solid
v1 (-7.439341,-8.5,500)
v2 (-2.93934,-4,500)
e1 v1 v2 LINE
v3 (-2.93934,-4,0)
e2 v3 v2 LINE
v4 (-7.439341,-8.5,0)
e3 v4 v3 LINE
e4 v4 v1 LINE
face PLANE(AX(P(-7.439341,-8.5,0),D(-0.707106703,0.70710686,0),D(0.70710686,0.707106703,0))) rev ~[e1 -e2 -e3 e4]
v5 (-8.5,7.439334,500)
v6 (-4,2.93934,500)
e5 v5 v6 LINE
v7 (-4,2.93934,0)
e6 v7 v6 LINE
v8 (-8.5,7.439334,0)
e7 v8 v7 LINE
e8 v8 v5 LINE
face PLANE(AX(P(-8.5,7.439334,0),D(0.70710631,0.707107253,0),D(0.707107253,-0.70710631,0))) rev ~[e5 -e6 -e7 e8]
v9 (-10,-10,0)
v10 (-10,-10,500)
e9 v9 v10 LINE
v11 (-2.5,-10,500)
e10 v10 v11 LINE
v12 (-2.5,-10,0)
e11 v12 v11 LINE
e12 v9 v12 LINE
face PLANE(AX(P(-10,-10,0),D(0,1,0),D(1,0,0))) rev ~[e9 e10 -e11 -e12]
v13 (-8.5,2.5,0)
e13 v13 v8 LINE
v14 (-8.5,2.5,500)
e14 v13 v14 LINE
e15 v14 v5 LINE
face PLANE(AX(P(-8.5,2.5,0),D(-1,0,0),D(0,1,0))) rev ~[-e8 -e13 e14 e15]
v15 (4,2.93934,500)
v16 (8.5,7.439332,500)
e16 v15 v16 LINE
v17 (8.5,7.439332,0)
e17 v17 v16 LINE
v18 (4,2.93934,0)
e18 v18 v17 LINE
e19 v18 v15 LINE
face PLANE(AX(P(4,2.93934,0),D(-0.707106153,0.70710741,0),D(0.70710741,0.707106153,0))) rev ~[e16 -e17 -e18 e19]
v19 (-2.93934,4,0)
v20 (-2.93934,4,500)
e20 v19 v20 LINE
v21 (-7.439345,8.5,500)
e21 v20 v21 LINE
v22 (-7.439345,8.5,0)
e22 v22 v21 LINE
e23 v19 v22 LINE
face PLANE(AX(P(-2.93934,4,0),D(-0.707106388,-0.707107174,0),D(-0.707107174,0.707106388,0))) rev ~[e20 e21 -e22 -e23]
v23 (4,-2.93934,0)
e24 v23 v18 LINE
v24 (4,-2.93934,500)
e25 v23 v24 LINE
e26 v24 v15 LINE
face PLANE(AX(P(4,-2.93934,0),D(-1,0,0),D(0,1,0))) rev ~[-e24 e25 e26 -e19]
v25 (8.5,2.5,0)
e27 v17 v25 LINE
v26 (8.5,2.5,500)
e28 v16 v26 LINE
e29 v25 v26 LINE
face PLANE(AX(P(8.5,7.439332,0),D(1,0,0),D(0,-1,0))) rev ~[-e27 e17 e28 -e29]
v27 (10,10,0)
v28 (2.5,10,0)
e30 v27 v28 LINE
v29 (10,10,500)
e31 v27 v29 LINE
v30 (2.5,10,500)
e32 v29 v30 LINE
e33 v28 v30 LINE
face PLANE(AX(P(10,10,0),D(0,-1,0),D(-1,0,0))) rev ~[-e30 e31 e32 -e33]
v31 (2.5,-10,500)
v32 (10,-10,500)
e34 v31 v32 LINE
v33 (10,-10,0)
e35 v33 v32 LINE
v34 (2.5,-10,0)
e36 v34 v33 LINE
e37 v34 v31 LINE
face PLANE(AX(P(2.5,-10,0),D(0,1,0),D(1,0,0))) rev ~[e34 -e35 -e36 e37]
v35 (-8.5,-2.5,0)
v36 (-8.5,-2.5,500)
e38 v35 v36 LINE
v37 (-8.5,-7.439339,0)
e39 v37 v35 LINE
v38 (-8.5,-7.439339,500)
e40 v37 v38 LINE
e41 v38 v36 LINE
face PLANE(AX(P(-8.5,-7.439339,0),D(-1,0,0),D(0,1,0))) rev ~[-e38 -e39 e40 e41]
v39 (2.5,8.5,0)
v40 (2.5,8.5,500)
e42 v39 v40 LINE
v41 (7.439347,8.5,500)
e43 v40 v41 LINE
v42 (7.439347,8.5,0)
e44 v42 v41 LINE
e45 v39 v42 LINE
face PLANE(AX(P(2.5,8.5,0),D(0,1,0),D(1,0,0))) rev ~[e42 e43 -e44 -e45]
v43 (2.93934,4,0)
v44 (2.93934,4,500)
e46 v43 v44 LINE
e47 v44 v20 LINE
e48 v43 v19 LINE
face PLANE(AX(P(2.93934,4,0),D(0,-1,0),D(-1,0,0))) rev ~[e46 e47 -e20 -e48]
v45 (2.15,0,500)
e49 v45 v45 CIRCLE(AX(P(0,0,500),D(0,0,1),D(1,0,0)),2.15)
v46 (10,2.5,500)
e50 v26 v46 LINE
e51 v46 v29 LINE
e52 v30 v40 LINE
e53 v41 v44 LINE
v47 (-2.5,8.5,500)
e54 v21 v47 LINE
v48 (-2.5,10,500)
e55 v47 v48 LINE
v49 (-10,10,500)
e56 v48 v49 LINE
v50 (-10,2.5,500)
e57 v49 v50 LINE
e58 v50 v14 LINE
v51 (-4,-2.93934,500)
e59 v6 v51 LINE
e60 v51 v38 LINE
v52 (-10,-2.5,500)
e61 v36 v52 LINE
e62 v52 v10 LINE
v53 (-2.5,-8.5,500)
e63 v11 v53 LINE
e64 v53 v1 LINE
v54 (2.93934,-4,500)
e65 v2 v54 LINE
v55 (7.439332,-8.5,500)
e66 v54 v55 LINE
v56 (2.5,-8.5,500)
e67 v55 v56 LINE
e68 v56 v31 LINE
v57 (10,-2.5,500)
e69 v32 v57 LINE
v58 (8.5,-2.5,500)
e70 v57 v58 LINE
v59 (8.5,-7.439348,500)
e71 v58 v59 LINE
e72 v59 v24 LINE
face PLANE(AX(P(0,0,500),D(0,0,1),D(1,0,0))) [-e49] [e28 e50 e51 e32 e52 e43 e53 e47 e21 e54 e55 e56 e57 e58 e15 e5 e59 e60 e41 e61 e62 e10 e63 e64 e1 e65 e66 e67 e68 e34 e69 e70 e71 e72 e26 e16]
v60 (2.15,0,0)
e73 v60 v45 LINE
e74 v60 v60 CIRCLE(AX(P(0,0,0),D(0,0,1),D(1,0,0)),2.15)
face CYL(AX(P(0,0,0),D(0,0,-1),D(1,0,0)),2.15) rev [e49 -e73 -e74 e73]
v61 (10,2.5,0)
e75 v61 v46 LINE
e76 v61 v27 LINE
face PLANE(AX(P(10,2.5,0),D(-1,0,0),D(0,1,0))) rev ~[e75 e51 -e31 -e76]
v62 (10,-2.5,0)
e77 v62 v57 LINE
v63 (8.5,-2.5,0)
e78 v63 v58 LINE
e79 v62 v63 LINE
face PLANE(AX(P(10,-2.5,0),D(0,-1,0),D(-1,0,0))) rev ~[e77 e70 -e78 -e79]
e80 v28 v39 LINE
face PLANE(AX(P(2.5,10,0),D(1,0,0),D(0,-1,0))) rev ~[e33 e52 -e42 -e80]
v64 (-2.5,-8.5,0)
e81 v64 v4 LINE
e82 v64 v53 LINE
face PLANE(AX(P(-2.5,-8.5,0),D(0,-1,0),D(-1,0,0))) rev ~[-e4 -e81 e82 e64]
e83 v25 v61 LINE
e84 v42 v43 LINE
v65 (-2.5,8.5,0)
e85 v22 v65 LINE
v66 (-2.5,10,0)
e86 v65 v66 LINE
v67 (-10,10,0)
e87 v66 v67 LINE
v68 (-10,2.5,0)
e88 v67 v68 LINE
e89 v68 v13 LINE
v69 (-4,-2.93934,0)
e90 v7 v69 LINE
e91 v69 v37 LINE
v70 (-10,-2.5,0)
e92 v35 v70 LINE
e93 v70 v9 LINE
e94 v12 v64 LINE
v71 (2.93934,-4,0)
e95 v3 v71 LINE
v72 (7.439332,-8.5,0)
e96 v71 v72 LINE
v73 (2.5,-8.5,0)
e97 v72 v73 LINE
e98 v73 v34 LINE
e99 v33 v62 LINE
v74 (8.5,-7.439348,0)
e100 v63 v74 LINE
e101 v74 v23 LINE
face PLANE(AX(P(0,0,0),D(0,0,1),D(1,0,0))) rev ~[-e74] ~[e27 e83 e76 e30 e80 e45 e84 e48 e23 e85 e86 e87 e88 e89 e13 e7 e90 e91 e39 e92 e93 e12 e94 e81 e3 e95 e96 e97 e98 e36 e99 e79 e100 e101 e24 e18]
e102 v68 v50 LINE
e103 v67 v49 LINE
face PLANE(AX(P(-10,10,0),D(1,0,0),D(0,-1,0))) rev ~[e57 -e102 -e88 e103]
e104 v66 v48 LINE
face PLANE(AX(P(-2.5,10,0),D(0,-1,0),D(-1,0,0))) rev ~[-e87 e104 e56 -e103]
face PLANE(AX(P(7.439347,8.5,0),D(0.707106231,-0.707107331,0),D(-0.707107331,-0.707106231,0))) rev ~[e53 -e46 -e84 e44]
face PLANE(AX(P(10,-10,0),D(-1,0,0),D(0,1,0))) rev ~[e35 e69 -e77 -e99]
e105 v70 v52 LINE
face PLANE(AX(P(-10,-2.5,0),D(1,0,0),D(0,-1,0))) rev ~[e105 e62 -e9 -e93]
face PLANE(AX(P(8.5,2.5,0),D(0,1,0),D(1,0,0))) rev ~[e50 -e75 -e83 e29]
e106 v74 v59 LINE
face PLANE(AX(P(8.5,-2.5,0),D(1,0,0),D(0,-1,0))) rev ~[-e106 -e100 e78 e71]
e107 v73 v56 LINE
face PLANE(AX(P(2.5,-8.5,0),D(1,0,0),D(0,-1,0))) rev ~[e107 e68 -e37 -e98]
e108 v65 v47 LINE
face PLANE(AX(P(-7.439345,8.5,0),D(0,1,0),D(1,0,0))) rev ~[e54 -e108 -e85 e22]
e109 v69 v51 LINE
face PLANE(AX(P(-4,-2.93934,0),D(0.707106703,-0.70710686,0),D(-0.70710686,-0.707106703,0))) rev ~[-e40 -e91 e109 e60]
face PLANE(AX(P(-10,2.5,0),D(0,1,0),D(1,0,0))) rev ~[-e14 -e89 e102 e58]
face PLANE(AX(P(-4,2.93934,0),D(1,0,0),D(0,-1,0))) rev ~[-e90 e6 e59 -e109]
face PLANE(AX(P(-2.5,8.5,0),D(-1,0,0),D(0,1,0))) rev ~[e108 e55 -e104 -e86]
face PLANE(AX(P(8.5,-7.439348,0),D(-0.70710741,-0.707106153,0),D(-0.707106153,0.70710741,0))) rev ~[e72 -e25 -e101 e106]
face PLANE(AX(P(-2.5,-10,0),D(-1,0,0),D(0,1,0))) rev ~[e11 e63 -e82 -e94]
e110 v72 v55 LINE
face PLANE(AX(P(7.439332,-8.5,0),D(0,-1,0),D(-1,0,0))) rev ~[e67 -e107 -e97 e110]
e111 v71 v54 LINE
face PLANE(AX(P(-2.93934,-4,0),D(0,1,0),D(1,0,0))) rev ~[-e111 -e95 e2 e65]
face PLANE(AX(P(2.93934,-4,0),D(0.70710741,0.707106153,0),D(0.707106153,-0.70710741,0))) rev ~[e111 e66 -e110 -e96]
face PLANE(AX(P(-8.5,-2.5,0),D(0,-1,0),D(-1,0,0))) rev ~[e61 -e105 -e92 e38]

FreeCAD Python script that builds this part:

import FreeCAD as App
import Part
import Sketcher
from FreeCAD import Vector
Q = App.Units.Quantity

doc = App.newDocument("Part")
body = doc.addObject("PartDesign::Body", "Body")

# Sketch on XY plane
sketch1 = body.newObject("Sketcher::SketchObject", "Sketch")
sketch1.AttachmentSupport = (doc.getObject("XY_Plane"), [""])
sketch1.MapMode = "FlatFace"
sketch1.addGeometry([
    Part.LineSegment(Vector(-4, 2.93934, 0), Vector(-4, -2.93934, 0)),  # 0
    Part.LineSegment(Vector(-4, -2.93934, 0), Vector(-8.5, -7.439339, 0)),  # 1
    Part.LineSegment(Vector(-8.5, -7.439339, 0), Vector(-8.5, -2.5, 0)),  # 2
    Part.LineSegment(Vector(-8.5, -2.5, 0), Vector(-10, -2.5, 0)),  # 3
    Part.LineSegment(Vector(-10, -2.5, 0), Vector(-10, -10, 0)),  # 4
    Part.LineSegment(Vector(-10, -10, 0), Vector(-2.5, -10, 0)),  # 5
    Part.LineSegment(Vector(-2.5, -10, 0), Vector(-2.5, -8.5, 0)),  # 6
    Part.LineSegment(Vector(-2.5, -8.5, 0), Vector(-7.439341, -8.5, 0)),  # 7
    Part.LineSegment(Vector(-7.439341, -8.5, 0), Vector(-2.93934, -4, 0)),  # 8
    Part.LineSegment(Vector(-2.93934, -4, 0), Vector(2.93934, -4, 0)),  # 9
    Part.LineSegment(Vector(2.93934, -4, 0), Vector(7.439332, -8.5, 0)),  # 10
    Part.LineSegment(Vector(7.439332, -8.5, 0), Vector(2.5, -8.5, 0)),  # 11
    Part.LineSegment(Vector(2.5, -8.5, 0), Vector(2.5, -10, 0)),  # 12
    Part.LineSegment(Vector(2.5, -10, 0), Vector(10, -10, 0)),  # 13
    Part.LineSegment(Vector(10, -10, 0), Vector(10, -2.5, 0)),  # 14
    Part.LineSegment(Vector(10, -2.5, 0), Vector(8.5, -2.5, 0)),  # 15
    Part.LineSegment(Vector(8.5, -2.5, 0), Vector(8.5, -7.439348, 0)),  # 16
    Part.LineSegment(Vector(8.5, -7.439348, 0), Vector(4, -2.93934, 0)),  # 17
    Part.LineSegment(Vector(4, -2.93934, 0), Vector(4, 2.93934, 0)),  # 18
    Part.LineSegment(Vector(4, 2.93934, 0), Vector(8.5, 7.439332, 0)),  # 19
    Part.LineSegment(Vector(8.5, 7.439332, 0), Vector(8.5, 2.5, 0)),  # 20
    Part.LineSegment(Vector(8.5, 2.5, 0), Vector(10, 2.5, 0)),  # 21
    Part.LineSegment(Vector(10, 2.5, 0), Vector(10, 10, 0)),  # 22
    Part.LineSegment(Vector(10, 10, 0), Vector(2.5, 10, 0)),  # 23
    Part.LineSegment(Vector(2.5, 10, 0), Vector(2.5, 8.5, 0)),  # 24
    Part.LineSegment(Vector(2.5, 8.5, 0), Vector(7.439347, 8.5, 0)),  # 25
    Part.LineSegment(Vector(7.439347, 8.5, 0), Vector(2.93934, 4, 0)),  # 26
    Part.LineSegment(Vector(2.93934, 4, 0), Vector(-2.93934, 4, 0)),  # 27
    Part.LineSegment(Vector(-2.93934, 4, 0), Vector(-7.439345, 8.5, 0)),  # 28
    Part.LineSegment(Vector(-7.439345, 8.5, 0), Vector(-2.5, 8.5, 0)),  # 29
    Part.LineSegment(Vector(-2.5, 8.5, 0), Vector(-2.5, 10, 0)),  # 30
    Part.LineSegment(Vector(-2.5, 10, 0), Vector(-10, 10, 0)),  # 31
    Part.LineSegment(Vector(-10, 10, 0), Vector(-10, 2.5, 0)),  # 32
    Part.LineSegment(Vector(-10, 2.5, 0), Vector(-8.5, 2.5, 0)),  # 33
    Part.LineSegment(Vector(-8.5, 2.5, 0), Vector(-8.5, 7.439334, 0)),  # 34
    Part.LineSegment(Vector(-8.5, 7.439334, 0), Vector(-4, 2.93934, 0)),  # 35
    Part.Circle(Vector(0, 0, 0), Vector(0, 0, 1), 2.15),  # 36
], False)
sketch1.addConstraint([
    Sketcher.Constraint("Coincident", 0, 2, 1, 1),
    Sketcher.Constraint("Coincident", 1, 2, 2, 1),
    Sketcher.Constraint("Coincident", 2, 2, 3, 1),
    Sketcher.Constraint("Coincident", 3, 2, 4, 1),
    Sketcher.Constraint("Coincident", 4, 2, 5, 1),
    Sketcher.Constraint("Coincident", 5, 2, 6, 1),
    Sketcher.Constraint("Coincident", 6, 2, 7, 1),
    Sketcher.Constraint("Coincident", 7, 2, 8, 1),
    Sketcher.Constraint("Coincident", 8, 2, 9, 1),
    Sketcher.Constraint("Coincident", 9, 2, 10, 1),
    Sketcher.Constraint("Coincident", 10, 2, 11, 1),
    Sketcher.Constraint("Coincident", 11, 2, 12, 1),
    Sketcher.Constraint("Coincident", 12, 2, 13, 1),
    Sketcher.Constraint("Coincident", 13, 2, 14, 1),
    Sketcher.Constraint("Coincident", 14, 2, 15, 1),
    Sketcher.Constraint("Coincident", 15, 2, 16, 1),
    Sketcher.Constraint("Coincident", 16, 2, 17, 1),
    Sketcher.Constraint("Coincident", 17, 2, 18, 1),
    Sketcher.Constraint("Coincident", 18, 2, 19, 1),
    Sketcher.Constraint("Coincident", 19, 2, 20, 1),
    Sketcher.Constraint("Coincident", 20, 2, 21, 1),
    Sketcher.Constraint("Coincident", 21, 2, 22, 1),
    Sketcher.Constraint("Coincident", 22, 2, 23, 1),
    Sketcher.Constraint("Coincident", 23, 2, 24, 1),
    Sketcher.Constraint("Coincident", 24, 2, 25, 1),
    Sketcher.Constraint("Coincident", 25, 2, 26, 1),
    Sketcher.Constraint("Coincident", 26, 2, 27, 1),
    Sketcher.Constraint("Coincident", 27, 2, 28, 1),
    Sketcher.Constraint("Coincident", 28, 2, 29, 1),
    Sketcher.Constraint("Coincident", 29, 2, 30, 1),
    Sketcher.Constraint("Coincident", 30, 2, 31, 1),
    Sketcher.Constraint("Coincident", 31, 2, 32, 1),
    Sketcher.Constraint("Coincident", 32, 2, 33, 1),
    Sketcher.Constraint("Coincident", 33, 2, 34, 1),
    Sketcher.Constraint("Coincident", 34, 2, 35, 1),
    Sketcher.Constraint("Coincident", 35, 2, 0, 1),
    Sketcher.Constraint("Vertical", 0),
    Sketcher.Constraint("Vertical", 2),
    Sketcher.Constraint("Horizontal", 3),
    Sketcher.Constraint("Vertical", 4),
    Sketcher.Constraint("Horizontal", 5),
    Sketcher.Constraint("Vertical", 6),
    Sketcher.Constraint("Horizontal", 7),
    Sketcher.Constraint("Horizontal", 9),
    Sketcher.Constraint("Horizontal", 11),
    Sketcher.Constraint("Vertical", 12),
    Sketcher.Constraint("Horizontal", 13),
    Sketcher.Constraint("Vertical", 14),
    Sketcher.Constraint("Horizontal", 15),
    Sketcher.Constraint("Vertical", 16),
    Sketcher.Constraint("Vertical", 18),
    Sketcher.Constraint("Vertical", 20),
    Sketcher.Constraint("Horizontal", 21),
    Sketcher.Constraint("Vertical", 22),
    Sketcher.Constraint("Horizontal", 23),
    Sketcher.Constraint("Vertical", 24),
    Sketcher.Constraint("Horizontal", 25),
    Sketcher.Constraint("Horizontal", 27),
    Sketcher.Constraint("Horizontal", 29),
    Sketcher.Constraint("Vertical", 30),
    Sketcher.Constraint("Horizontal", 31),
    Sketcher.Constraint("Vertical", 32),
    Sketcher.Constraint("Horizontal", 33),
    Sketcher.Constraint("Vertical", 34),
    Sketcher.Constraint("Coincident", 36, 3, -1, 1),
    Sketcher.Constraint("Symmetric", 0, 2, 18, 2, -1, 1),
    Sketcher.Constraint("Symmetric", 1, 2, 19, 2, -1, 1),
    Sketcher.Constraint("Symmetric", 3, 2, 21, 2, -1, 1),
    Sketcher.Constraint("Symmetric", 5, 2, 23, 2, -1, 1),
    Sketcher.Constraint("Symmetric", 7, 2, 25, 2, -1, 1),
    Sketcher.Constraint("Symmetric", 8, 2, 26, 2, -1, 1),
    Sketcher.Constraint("Symmetric", 11, 2, 29, 2, -1, 1),
    Sketcher.Constraint("Symmetric", 13, 2, 31, 2, -1, 1),
    Sketcher.Constraint("Symmetric", 15, 2, 33, 2, -1, 1),
    Sketcher.Constraint("Symmetric", 7, 2, 10, 2, -2),
    Sketcher.Constraint("Symmetric", 5, 2, 12, 2, -2),
    Sketcher.Constraint("Symmetric", 3, 2, 14, 2, -2),
    Sketcher.Constraint("Symmetric", 1, 2, 16, 2, -2),
    Sketcher.Constraint("Parallel", 1, 8),
    Sketcher.Constraint("Perpendicular", 8, 10),
    Sketcher.Constraint("Parallel", 10, 17),
    Sketcher.Constraint("Perpendicular", 26, 28),
    Sketcher.Constraint("Parallel", 28, 35),
    Sketcher.Constraint("Horizontal", 0, 2, 17, 2),
    Sketcher.Constraint("Horizontal", 19, 2, 34, 2),
    Sketcher.Constraint("Vertical", 8, 2, 27, 2),
    Sketcher.Constraint("Equal", 27, 0),
    Sketcher.Constraint("Equal", 7, 2),
    Sketcher.Constraint("Equal", 31, 4),
    Sketcher.Constraint("Equal", 33, 6),
    Sketcher.Constraint("Equal", 1, 8),
    Sketcher.Constraint("Diameter", 36, Q("4.3 mm")),
    Sketcher.Constraint("DistanceX", 3, 2, 3, 1, Q("1.5 mm")),
    Sketcher.Constraint("DistanceX", 5, 1, 5, 2, Q("7.5 mm")),
    Sketcher.Constraint("DistanceX", 0, 2, -1, 1, Q("4 mm")),
    Sketcher.Constraint("DistanceX", 3, 2, -1, 1, Q("10 mm")),
    Sketcher.Constraint("DistanceX", 7, 2, 7, 1, Q("4.939341 mm")),
])
pad1 = body.newObject("PartDesign::Pad", "Pad")
pad1.Profile = sketch1
pad1.Length = 500

doc.recompute()
